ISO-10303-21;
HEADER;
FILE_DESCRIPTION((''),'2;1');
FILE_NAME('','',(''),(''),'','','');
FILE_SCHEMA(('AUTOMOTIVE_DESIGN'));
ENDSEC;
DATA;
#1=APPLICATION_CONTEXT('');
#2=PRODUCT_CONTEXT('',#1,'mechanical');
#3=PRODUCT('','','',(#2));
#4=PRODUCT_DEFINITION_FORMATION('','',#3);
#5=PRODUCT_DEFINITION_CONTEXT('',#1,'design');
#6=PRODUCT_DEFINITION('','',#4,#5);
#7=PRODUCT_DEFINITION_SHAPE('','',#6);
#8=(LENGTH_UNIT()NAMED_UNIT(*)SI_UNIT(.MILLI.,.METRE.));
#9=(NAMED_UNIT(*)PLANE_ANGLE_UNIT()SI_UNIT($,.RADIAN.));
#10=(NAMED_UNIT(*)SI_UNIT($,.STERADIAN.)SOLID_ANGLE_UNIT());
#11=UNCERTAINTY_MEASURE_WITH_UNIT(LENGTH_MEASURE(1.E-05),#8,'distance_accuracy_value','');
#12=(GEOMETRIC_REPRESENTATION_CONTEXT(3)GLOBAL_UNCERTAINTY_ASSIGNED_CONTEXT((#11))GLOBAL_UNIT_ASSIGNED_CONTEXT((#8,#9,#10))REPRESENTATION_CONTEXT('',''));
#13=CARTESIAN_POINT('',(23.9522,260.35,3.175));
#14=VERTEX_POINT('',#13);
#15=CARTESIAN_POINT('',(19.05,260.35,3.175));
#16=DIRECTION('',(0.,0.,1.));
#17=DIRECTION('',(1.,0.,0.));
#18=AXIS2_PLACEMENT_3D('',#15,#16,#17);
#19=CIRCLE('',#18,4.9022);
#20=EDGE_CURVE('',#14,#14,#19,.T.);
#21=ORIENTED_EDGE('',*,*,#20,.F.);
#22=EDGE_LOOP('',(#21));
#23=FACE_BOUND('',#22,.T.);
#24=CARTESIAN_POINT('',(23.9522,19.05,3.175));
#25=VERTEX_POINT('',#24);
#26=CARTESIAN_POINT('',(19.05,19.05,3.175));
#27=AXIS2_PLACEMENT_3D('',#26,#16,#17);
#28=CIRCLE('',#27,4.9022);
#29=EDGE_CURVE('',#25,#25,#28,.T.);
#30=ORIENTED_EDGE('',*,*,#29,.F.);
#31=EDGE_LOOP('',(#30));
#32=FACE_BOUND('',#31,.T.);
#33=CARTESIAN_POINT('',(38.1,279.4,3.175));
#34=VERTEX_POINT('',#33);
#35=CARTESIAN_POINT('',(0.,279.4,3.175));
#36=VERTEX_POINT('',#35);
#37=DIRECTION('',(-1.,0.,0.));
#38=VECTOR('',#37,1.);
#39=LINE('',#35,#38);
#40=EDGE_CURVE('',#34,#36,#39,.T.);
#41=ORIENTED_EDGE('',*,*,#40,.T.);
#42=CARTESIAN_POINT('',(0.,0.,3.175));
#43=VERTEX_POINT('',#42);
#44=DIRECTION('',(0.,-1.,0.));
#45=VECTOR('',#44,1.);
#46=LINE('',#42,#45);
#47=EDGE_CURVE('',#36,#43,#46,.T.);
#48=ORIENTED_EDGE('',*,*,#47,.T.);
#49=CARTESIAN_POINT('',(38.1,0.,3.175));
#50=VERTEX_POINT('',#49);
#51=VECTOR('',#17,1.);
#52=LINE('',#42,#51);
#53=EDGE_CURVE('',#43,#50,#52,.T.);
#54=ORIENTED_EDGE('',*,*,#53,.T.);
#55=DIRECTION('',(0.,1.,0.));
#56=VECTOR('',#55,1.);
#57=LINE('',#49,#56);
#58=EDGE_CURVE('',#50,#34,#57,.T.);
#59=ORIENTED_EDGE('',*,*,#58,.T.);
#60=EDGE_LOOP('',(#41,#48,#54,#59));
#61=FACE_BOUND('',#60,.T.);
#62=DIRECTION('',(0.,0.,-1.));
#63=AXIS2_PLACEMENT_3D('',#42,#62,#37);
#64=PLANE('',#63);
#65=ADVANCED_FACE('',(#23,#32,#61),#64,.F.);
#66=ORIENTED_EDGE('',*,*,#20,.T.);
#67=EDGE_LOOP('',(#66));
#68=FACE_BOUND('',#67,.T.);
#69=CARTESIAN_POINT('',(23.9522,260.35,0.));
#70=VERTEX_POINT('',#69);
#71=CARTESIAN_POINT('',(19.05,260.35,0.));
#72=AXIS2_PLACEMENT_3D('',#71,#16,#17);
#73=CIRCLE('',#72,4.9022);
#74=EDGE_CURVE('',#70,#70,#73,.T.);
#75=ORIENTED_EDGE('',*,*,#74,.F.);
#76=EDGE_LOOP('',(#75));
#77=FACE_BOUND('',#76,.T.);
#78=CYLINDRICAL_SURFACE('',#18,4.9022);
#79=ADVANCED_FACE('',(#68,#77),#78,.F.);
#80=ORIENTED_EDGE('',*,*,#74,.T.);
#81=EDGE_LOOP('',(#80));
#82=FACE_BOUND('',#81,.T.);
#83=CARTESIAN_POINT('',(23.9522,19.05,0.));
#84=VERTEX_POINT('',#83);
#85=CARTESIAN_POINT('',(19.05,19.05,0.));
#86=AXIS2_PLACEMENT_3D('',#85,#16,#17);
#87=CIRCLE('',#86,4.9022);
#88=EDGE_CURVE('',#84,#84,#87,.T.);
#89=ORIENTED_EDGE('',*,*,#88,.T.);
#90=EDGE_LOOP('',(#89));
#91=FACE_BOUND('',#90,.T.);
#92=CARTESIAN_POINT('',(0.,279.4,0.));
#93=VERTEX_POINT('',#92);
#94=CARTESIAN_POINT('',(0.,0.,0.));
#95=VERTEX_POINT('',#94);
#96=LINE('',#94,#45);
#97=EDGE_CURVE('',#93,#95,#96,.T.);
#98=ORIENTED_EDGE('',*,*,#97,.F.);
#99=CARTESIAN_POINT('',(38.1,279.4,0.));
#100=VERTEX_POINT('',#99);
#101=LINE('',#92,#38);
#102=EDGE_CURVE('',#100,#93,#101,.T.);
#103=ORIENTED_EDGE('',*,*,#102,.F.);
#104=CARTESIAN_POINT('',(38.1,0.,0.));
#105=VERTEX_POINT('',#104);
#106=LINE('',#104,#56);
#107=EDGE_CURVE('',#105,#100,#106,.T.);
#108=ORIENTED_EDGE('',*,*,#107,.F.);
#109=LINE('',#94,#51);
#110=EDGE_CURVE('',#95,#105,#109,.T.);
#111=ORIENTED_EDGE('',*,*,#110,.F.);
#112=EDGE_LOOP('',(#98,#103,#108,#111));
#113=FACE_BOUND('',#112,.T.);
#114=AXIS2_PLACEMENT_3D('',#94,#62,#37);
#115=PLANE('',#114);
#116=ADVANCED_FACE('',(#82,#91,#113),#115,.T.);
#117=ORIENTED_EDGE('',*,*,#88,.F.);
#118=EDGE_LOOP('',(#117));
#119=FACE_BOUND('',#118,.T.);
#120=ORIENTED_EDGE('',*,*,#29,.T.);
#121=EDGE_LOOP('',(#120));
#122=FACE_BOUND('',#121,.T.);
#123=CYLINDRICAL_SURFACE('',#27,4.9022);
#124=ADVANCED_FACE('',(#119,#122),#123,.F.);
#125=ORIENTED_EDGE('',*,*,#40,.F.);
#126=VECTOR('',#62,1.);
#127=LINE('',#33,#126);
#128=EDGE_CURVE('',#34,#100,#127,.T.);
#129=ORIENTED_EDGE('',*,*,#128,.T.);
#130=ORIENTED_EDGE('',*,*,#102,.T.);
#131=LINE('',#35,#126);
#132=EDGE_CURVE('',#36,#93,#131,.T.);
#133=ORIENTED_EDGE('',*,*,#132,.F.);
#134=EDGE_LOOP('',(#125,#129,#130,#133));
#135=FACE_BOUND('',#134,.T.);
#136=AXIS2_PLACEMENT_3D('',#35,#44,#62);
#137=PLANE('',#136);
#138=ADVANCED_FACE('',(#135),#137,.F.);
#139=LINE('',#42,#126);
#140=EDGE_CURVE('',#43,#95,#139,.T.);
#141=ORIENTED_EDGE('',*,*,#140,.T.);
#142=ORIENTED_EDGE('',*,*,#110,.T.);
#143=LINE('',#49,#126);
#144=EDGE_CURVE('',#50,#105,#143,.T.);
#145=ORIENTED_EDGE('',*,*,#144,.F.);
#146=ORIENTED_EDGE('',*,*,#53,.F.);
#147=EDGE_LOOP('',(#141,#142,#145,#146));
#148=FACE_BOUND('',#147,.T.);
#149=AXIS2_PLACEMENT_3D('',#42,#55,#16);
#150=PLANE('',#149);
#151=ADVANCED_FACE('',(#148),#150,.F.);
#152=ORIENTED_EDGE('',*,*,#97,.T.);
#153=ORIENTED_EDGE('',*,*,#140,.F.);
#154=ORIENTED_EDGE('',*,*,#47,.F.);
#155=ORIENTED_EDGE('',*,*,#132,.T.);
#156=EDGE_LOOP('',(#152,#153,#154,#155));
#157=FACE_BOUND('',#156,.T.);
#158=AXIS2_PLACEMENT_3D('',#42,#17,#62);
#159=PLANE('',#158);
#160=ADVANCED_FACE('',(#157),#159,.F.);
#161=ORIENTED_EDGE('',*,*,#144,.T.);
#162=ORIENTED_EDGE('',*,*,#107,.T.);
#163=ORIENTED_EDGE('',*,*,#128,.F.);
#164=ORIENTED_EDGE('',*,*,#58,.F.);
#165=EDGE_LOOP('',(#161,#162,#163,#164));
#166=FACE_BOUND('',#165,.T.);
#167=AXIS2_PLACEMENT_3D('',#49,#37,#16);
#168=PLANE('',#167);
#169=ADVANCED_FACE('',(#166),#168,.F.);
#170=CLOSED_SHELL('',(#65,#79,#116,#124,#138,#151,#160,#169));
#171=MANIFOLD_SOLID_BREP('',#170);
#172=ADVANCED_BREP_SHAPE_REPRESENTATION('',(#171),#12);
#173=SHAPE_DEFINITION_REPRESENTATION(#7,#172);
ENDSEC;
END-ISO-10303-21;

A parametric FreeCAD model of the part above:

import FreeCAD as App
import Part
import Sketcher
Q = App.Units.Quantity

doc = App.newDocument("Part")
body = doc.addObject("PartDesign::Body", "Body")

sketch1 = doc.addObject("Sketcher::SketchObject", "Sketch")
body.addObject(sketch1)
sketch1.AttachmentSupport = (doc.XY_Plane, [""])
sketch1.MapMode = "FlatFace"
sketch1.addGeometry(Part.LineSegment(App.Vector(0, 279, 0), App.Vector(0, 0, 0)), False)
sketch1.addGeometry(Part.LineSegment(App.Vector(0, 0, 0), App.Vector(38, 0, 0)), False)
sketch1.addGeometry(Part.LineSegment(App.Vector(38, 0, 0), App.Vector(38, 279, 0)), False)
sketch1.addGeometry(Part.LineSegment(App.Vector(38, 279, 0), App.Vector(0, 279, 0)), False)
sketch1.addConstraint(Sketcher.Constraint("Coincident", 0, 2, 1, 1))
sketch1.addConstraint(Sketcher.Constraint("Coincident", 1, 2, 2, 1))
sketch1.addConstraint(Sketcher.Constraint("Coincident", 2, 2, 3, 1))
sketch1.addConstraint(Sketcher.Constraint("Coincident", 3, 2, 0, 1))
sketch1.addConstraint(Sketcher.Constraint("Vertical", 0))
sketch1.addConstraint(Sketcher.Constraint("Horizontal", 1))
sketch1.addConstraint(Sketcher.Constraint("Vertical", 2))
sketch1.addConstraint(Sketcher.Constraint("Horizontal", 3))
sketch1.addConstraint(Sketcher.Constraint("Coincident", 0, 2, -1, 1))
sketch1.addConstraint(Sketcher.Constraint("DistanceY", 0, 2, 0, 1, Q("11 in")))
sketch1.addConstraint(Sketcher.Constraint("DistanceX", 1, 1, 1, 2, Q("1.5 in")))
pad1 = doc.addObject("PartDesign::Pad", "Pad")
body.addObject(pad1)
pad1.Profile = sketch1
pad1.Length = Q("0.125 in")

sketch2 = doc.addObject("Sketcher::SketchObject", "Sketch001")
body.addObject(sketch2)
sketch2.AttachmentSupport = (doc.XY_Plane, [""])
sketch2.MapMode = "FlatFace"
sketch2.AttachmentOffset = App.Placement(App.Vector(0, 0, 0.125 * 25.4), App.Rotation())
sketch2.addGeometry(Part.Circle(App.Vector(19.1, 260.4, 0), App.Vector(0, 0, 1), 4.9), False)
sketch2.addGeometry(Part.Circle(App.Vector(19.1, 19.1, 0), App.Vector(0, 0, 1), 4.9), False)
sketch2.addConstraint(Sketcher.Constraint("Equal", 0, 1))
sketch2.addConstraint(Sketcher.Constraint("Vertical", 0, 3, 1, 3))
sketch2.addConstraint(Sketcher.Constraint("Diameter", 0, Q("0.386 in")))
sketch2.addConstraint(Sketcher.Constraint("DistanceY", 1, 3, 0, 3, Q("9.5 in")))
sketch2.addConstraint(Sketcher.Constraint("DistanceX", -1, 1, 0, 3, Q("0.75 in")))
sketch2.addConstraint(Sketcher.Constraint("DistanceY", -1, 1, 0, 3, Q("10.25 in")))
doc.recompute()
hole = doc.addObject("PartDesign::Hole", "Hole")
body.addObject(hole)
hole.Profile = sketch2
hole.ThreadType = "None"
hole.Diameter = Q("0.386 in")
hole.DepthType = "ThroughAll"

doc.recompute()
